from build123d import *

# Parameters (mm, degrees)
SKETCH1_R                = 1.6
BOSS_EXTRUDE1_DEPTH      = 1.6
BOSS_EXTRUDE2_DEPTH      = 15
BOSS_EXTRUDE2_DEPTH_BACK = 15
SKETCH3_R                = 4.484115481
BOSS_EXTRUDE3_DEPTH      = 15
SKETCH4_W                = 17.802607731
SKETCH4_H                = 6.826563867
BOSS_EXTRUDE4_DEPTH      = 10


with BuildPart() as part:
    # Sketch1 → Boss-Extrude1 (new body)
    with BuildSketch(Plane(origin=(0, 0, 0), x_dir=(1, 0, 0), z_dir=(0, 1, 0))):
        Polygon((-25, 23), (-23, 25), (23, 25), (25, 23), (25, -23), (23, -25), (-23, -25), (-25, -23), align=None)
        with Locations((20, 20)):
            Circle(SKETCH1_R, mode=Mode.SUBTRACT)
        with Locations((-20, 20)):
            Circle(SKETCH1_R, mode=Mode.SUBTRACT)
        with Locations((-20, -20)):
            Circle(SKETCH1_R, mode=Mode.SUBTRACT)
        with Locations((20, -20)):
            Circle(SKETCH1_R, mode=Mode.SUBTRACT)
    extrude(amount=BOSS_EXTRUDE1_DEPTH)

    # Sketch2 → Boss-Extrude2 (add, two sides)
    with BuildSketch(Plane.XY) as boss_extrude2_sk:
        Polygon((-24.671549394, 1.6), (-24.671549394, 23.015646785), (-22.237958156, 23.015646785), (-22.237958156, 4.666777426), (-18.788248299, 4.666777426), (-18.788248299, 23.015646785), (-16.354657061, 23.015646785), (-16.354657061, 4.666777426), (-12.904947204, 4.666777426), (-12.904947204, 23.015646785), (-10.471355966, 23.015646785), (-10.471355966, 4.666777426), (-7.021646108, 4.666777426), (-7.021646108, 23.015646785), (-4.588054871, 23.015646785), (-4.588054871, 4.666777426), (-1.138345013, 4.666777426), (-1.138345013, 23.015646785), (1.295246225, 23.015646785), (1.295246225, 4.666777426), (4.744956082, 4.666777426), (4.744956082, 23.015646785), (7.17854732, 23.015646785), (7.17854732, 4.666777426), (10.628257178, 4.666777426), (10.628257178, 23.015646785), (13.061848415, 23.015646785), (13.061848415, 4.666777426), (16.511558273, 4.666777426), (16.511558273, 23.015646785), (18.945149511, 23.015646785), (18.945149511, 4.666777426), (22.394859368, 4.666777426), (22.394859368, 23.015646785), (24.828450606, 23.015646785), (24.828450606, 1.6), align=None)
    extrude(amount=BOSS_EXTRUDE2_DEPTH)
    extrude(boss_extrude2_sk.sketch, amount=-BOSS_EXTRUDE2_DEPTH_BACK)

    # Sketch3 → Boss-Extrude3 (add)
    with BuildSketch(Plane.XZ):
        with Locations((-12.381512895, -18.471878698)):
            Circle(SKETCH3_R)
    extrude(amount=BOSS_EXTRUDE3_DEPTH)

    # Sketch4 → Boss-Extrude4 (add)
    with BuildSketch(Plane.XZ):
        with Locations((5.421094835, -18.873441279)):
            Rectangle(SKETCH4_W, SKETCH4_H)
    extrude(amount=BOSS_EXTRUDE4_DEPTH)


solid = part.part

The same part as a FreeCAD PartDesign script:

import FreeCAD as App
import Part
import Sketcher
from FreeCAD import Vector

doc = App.newDocument("Part")
params = doc.addObject("Spreadsheet::Sheet", "Params")
for row, (alias, value) in enumerate([
    ("sketch1_diameter", "3.2 mm"),
    ("sketch1_width", "46 mm"),
    ("pad1_length", "1.6 mm"),
    ("sketch2_width", "49.5 mm"),
    ("pad2_length", "15 mm"),
    ("pad2_length2", "15 mm"),
    ("pad3_length", "15 mm"),
    ("pad4_length", "10 mm"),
], start=1):
    params.set(f"A{row}", alias)
    params.set(f"B{row}", "=" + value)
    params.setAlias(f"B{row}", alias)

body = doc.addObject("PartDesign::Body", "Body")

# Sketch on XZ plane
sketch1 = body.newObject("Sketcher::SketchObject", "Sketch")
sketch1.AttachmentSupport = (doc.getObject("XZ_Plane"), [""])
sketch1.MapMode = "FlatFace"
sketch1.addGeometry([
    Part.LineSegment(Vector(-23, -25, 0), Vector(-25, -23, 0)),  # 0
    Part.LineSegment(Vector(-25, -23, 0), Vector(-25, 23, 0)),  # 1
    Part.LineSegment(Vector(-25, 23, 0), Vector(-23, 25, 0)),  # 2
    Part.LineSegment(Vector(-23, 25, 0), Vector(23, 25, 0)),  # 3
    Part.LineSegment(Vector(23, 25, 0), Vector(25, 23, 0)),  # 4
    Part.LineSegment(Vector(25, 23, 0), Vector(25, -23, 0)),  # 5
    Part.LineSegment(Vector(25, -23, 0), Vector(23, -25, 0)),  # 6
    Part.LineSegment(Vector(23, -25, 0), Vector(-23, -25, 0)),  # 7
    Part.Circle(Vector(20, 20, 0), Vector(0, 0, 1), 1.6),  # 8
    Part.Circle(Vector(-20, 20, 0), Vector(0, 0, 1), 1.6),  # 9
    Part.Circle(Vector(20, -20, 0), Vector(0, 0, 1), 1.6),  # 10
    Part.Circle(Vector(-20, -20, 0), Vector(0, 0, 1), 1.6),  # 11
], False)
sketch1.addConstraint([
    Sketcher.Constraint("Coincident", 0, 2, 1, 1),
    Sketcher.Constraint("Coincident", 1, 2, 2, 1),
    Sketcher.Constraint("Coincident", 2, 2, 3, 1),
    Sketcher.Constraint("Coincident", 3, 2, 4, 1),
    Sketcher.Constraint("Coincident", 4, 2, 5, 1),
    Sketcher.Constraint("Coincident", 5, 2, 6, 1),
    Sketcher.Constraint("Coincident", 6, 2, 7, 1),
    Sketcher.Constraint("Coincident", 7, 2, 0, 1),
    Sketcher.Constraint("Vertical", 1),
    Sketcher.Constraint("Horizontal", 3),
    Sketcher.Constraint("Vertical", 5),
    Sketcher.Constraint("Horizontal", 7),
    Sketcher.Constraint("Equal", 8, 9),
    Sketcher.Constraint("Equal", 9, 10),
    Sketcher.Constraint("Equal", 10, 11),
    Sketcher.Constraint("Symmetric", 9, 3, 10, 3, -1, 1),
    Sketcher.Constraint("Symmetric", 8, 3, 11, 3, -1, 1),
    Sketcher.Constraint("Symmetric", 0, 2, 4, 2, -1, 1),
    Sketcher.Constraint("Symmetric", 2, 2, 6, 2, -1, 1),
    Sketcher.Constraint("Symmetric", 8, 3, 9, 3, -2),
    Sketcher.Constraint("Perpendicular", 0, 2),
    Sketcher.Constraint("Perpendicular", 2, 4),
    Sketcher.Constraint("Perpendicular", 4, 6),
    Sketcher.Constraint("Horizontal", 1, 2, 4, 2),
    Sketcher.Constraint("Vertical", 3, 2, 6, 2),
    Sketcher.Constraint("Equal", 7, 1),
    Sketcher.Constraint("Diameter", 8, 3.2),
    Sketcher.Constraint("DistanceX", 3, 1, 3, 2, 46.0),
    Sketcher.Constraint("DistanceX", -1, 1, 8, 3, 20.0),
    Sketcher.Constraint("DistanceY", -1, 1, 8, 3, 20.0),
    Sketcher.Constraint("DistanceX", 0, 2, -1, 1, 25.0),
])
sketch1.setExpression("Constraints[26]", "Params.sketch1_diameter")
sketch1.setExpression("Constraints[27]", "Params.sketch1_width")
pad1 = body.newObject("PartDesign::Pad", "Pad")
pad1.Profile = sketch1
pad1.setExpression("Length", "Params.pad1_length")
pad1.Reversed = True

# Sketch on XY plane
sketch2 = body.newObject("Sketcher::SketchObject", "Sketch001")
sketch2.AttachmentSupport = (doc.getObject("XY_Plane"), [""])
sketch2.MapMode = "FlatFace"
sketch2.addGeometry([
    Part.LineSegment(Vector(-24.671549, 23.015647, 0), Vector(-24.671549, 1.6, 0)),  # 0
    Part.LineSegment(Vector(-24.671549, 1.6, 0), Vector(24.828451, 1.6, 0)),  # 1
    Part.LineSegment(Vector(24.828451, 1.6, 0), Vector(24.828451, 23.015647, 0)),  # 2
    Part.LineSegment(Vector(24.828451, 23.015647, 0), Vector(22.394859, 23.015647, 0)),  # 3
    Part.LineSegment(Vector(22.394859, 23.015647, 0), Vector(22.394859, 4.666777, 0)),  # 4
    Part.LineSegment(Vector(22.394859, 4.666777, 0), Vector(18.94515, 4.666777, 0)),  # 5
    Part.LineSegment(Vector(18.94515, 4.666777, 0), Vector(18.94515, 23.015647, 0)),  # 6
    Part.LineSegment(Vector(18.94515, 23.015647, 0), Vector(16.511558, 23.015647, 0)),  # 7
    Part.LineSegment(Vector(16.511558, 23.015647, 0), Vector(16.511558, 4.666777, 0)),  # 8
    Part.LineSegment(Vector(16.511558, 4.666777, 0), Vector(13.061848, 4.666777, 0)),  # 9
    Part.LineSegment(Vector(13.061848, 4.666777, 0), Vector(13.061848, 23.015647, 0)),  # 10
    Part.LineSegment(Vector(13.061848, 23.015647, 0), Vector(10.628257, 23.015647, 0)),  # 11
    Part.LineSegment(Vector(10.628257, 23.015647, 0), Vector(10.628257, 4.666777, 0)),  # 12
    Part.LineSegment(Vector(10.628257, 4.666777, 0), Vector(7.178547, 4.666777, 0)),  # 13
    Part.LineSegment(Vector(7.178547, 4.666777, 0), Vector(7.178547, 23.015647, 0)),  # 14
    Part.LineSegment(Vector(7.178547, 23.015647, 0), Vector(4.744956, 23.015647, 0)),  # 15
    Part.LineSegment(Vector(4.744956, 23.015647, 0), Vector(4.744956, 4.666777, 0)),  # 16
    Part.LineSegment(Vector(4.744956, 4.666777, 0), Vector(1.295246, 4.666777, 0)),  # 17
    Part.LineSegment(Vector(1.295246, 4.666777, 0), Vector(1.295246, 23.015647, 0)),  # 18
    Part.LineSegment(Vector(1.295246, 23.015647, 0), Vector(-1.138345, 23.015647, 0)),  # 19
    Part.LineSegment(Vector(-1.138345, 23.015647, 0), Vector(-1.138345, 4.666777, 0)),  # 20
    Part.LineSegment(Vector(-1.138345, 4.666777, 0), Vector(-4.588055, 4.666777, 0)),  # 21
    Part.LineSegment(Vector(-4.588055, 4.666777, 0), Vector(-4.588055, 23.015647, 0)),  # 22
    Part.LineSegment(Vector(-4.588055, 23.015647, 0), Vector(-7.021646, 23.015647, 0)),  # 23
    Part.LineSegment(Vector(-7.021646, 23.015647, 0), Vector(-7.021646, 4.666777, 0)),  # 24
    Part.LineSegment(Vector(-7.021646, 4.666777, 0), Vector(-10.471356, 4.666777, 0)),  # 25
    Part.LineSegment(Vector(-10.471356, 4.666777, 0), Vector(-10.471356, 23.015647, 0)),  # 26
    Part.LineSegment(Vector(-10.471356, 23.015647, 0), Vector(-12.904947, 23.015647, 0)),  # 27
    Part.LineSegment(Vector(-12.904947, 23.015647, 0), Vector(-12.904947, 4.666777, 0)),  # 28
    Part.LineSegment(Vector(-12.904947, 4.666777, 0), Vector(-16.354657, 4.666777, 0)),  # 29
    Part.LineSegment(Vector(-16.354657, 4.666777, 0), Vector(-16.354657, 23.015647, 0)),  # 30
    Part.LineSegment(Vector(-16.354657, 23.015647, 0), Vector(-18.788248, 23.015647, 0)),  # 31
    Part.LineSegment(Vector(-18.788248, 23.015647, 0), Vector(-18.788248, 4.666777, 0)),  # 32
    Part.LineSegment(Vector(-18.788248, 4.666777, 0), Vector(-22.237958, 4.666777, 0)),  # 33
    Part.LineSegment(Vector(-22.237958, 4.666777, 0), Vector(-22.237958, 23.015647, 0)),  # 34
    Part.LineSegment(Vector(-22.237958, 23.015647, 0), Vector(-24.671549, 23.015647, 0)),  # 35
], False)
sketch2.addConstraint([
    Sketcher.Constraint("Coincident", 0, 2, 1, 1),
    Sketcher.Constraint("Coincident", 1, 2, 2, 1),
    Sketcher.Constraint("Coincident", 2, 2, 3, 1),
    Sketcher.Constraint("Coincident", 3, 2, 4, 1),
    Sketcher.Constraint("Coincident", 4, 2, 5, 1),
    Sketcher.Constraint("Coincident", 5, 2, 6, 1),
    Sketcher.Constraint("Coincident", 6, 2, 7, 1),
    Sketcher.Constraint("Coincident", 7, 2, 8, 1),
    Sketcher.Constraint("Coincident", 8, 2, 9, 1),
    Sketcher.Constraint("Coincident", 9, 2, 10, 1),
    Sketcher.Constraint("Coincident", 10, 2, 11, 1),
    Sketcher.Constraint("Coincident", 11, 2, 12, 1),
    Sketcher.Constraint("Coincident", 12, 2, 13, 1),
    Sketcher.Constraint("Coincident", 13, 2, 14, 1),
    Sketcher.Constraint("Coincident", 14, 2, 15, 1),
    Sketcher.Constraint("Coincident", 15, 2, 16, 1),
    Sketcher.Constraint("Coincident", 16, 2, 17, 1),
    Sketcher.Constraint("Coincident", 17, 2, 18, 1),
    Sketcher.Constraint("Coincident", 18, 2, 19, 1),
    Sketcher.Constraint("Coincident", 19, 2, 20, 1),
    Sketcher.Constraint("Coincident", 20, 2, 21, 1),
    Sketcher.Constraint("Coincident", 21, 2, 22, 1),
    Sketcher.Constraint("Coincident", 22, 2, 23, 1),
    Sketcher.Constraint("Coincident", 23, 2, 24, 1),
    Sketcher.Constraint("Coincident", 24, 2, 25, 1),
    Sketcher.Constraint("Coincident", 25, 2, 26, 1),
    Sketcher.Constraint("Coincident", 26, 2, 27, 1),
    Sketcher.Constraint("Coincident", 27, 2, 28, 1),
    Sketcher.Constraint("Coincident", 28, 2, 29, 1),
    Sketcher.Constraint("Coincident", 29, 2, 30, 1),
    Sketcher.Constraint("Coincident", 30, 2, 31, 1),
    Sketcher.Constraint("Coincident", 31, 2, 32, 1),
    Sketcher.Constraint("Coincident", 32, 2, 33, 1),
    Sketcher.Constraint("Coincident", 33, 2, 34, 1),
    Sketcher.Constraint("Coincident", 34, 2, 35, 1),
    Sketcher.Constraint("Coincident", 35, 2, 0, 1),
    Sketcher.Constraint("Vertical", 0),
    Sketcher.Constraint("Horizontal", 1),
    Sketcher.Constraint("Vertical", 2),
    Sketcher.Constraint("Horizontal", 3),
    Sketcher.Constraint("Vertical", 4),
    Sketcher.Constraint("Horizontal", 5),
    Sketcher.Constraint("Vertical", 6),
    Sketcher.Constraint("Horizontal", 7),
    Sketcher.Constraint("Vertical", 8),
    Sketcher.Constraint("Horizontal", 9),
    Sketcher.Constraint("Vertical", 10),
    Sketcher.Constraint("Horizontal", 11),
    Sketcher.Constraint("Vertical", 12),
    Sketcher.Constraint("Horizontal", 13),
    Sketcher.Constraint("Vertical", 14),
    Sketcher.Constraint("Horizontal", 15),
    Sketcher.Constraint("Vertical", 16),
    Sketcher.Constraint("Horizontal", 17),
    Sketcher.Constraint("Vertical", 18),
    Sketcher.Constraint("Horizontal", 19),
    Sketcher.Constraint("Vertical", 20),
    Sketcher.Constraint("Horizontal", 21),
    Sketcher.Constraint("Vertical", 22),
    Sketcher.Constraint("Horizontal", 23),
    Sketcher.Constraint("Vertical", 24),
    Sketcher.Constraint("Horizontal", 25),
    Sketcher.Constraint("Vertical", 26),
    Sketcher.Constraint("Horizontal", 27),
    Sketcher.Constraint("Vertical", 28),
    Sketcher.Constraint("Horizontal", 29),
    Sketcher.Constraint("Vertical", 30),
    Sketcher.Constraint("Horizontal", 31),
    Sketcher.Constraint("Vertical", 32),
    Sketcher.Constraint("Horizontal", 33),
    Sketcher.Constraint("Vertical", 34),
    Sketcher.Constraint("Horizontal", 35),
    Sketcher.Constraint("Horizontal", 3, 2, 6, 2),
    Sketcher.Constraint("Horizontal", 5, 2, 8, 2),
    Sketcher.Constraint("Horizontal", 7, 2, 10, 2),
    Sketcher.Constraint("Horizontal", 9, 2, 12, 2),
    Sketcher.Constraint("Horizontal", 11, 2, 14, 2),
    Sketcher.Constraint("Horizontal", 13, 2, 16, 2),
    Sketcher.Constraint("Horizontal", 15, 2, 18, 2),
    Sketcher.Constraint("Horizontal", 17, 2, 20, 2),
    Sketcher.Constraint("Horizontal", 19, 2, 22, 2),
    Sketcher.Constraint("Horizontal", 21, 2, 24, 2),
    Sketcher.Constraint("Horizontal", 23, 2, 26, 2),
    Sketcher.Constraint("Horizontal", 25, 2, 28, 2),
    Sketcher.Constraint("Horizontal", 27, 2, 30, 2),
    Sketcher.Constraint("Horizontal", 29, 2, 32, 2),
    Sketcher.Constraint("Horizontal", 31, 2, 34, 2),
    Sketcher.Constraint("Equal", 3, 7),
    Sketcher.Constraint("Equal", 5, 9),
    Sketcher.Constraint("Equal", 7, 11),
    Sketcher.Constraint("Equal", 9, 13),
    Sketcher.Constraint("Equal", 11, 15),
    Sketcher.Constraint("Equal", 13, 17),
    Sketcher.Constraint("Equal", 15, 19),
    Sketcher.Constraint("Equal", 17, 21),
    Sketcher.Constraint("Equal", 19, 23),
    Sketcher.Constraint("Equal", 21, 25),
    Sketcher.Constraint("Equal", 23, 27),
    Sketcher.Constraint("Equal", 25, 29),
    Sketcher.Constraint("Equal", 27, 31),
    Sketcher.Constraint("Equal", 29, 33),
    Sketcher.Constraint("Equal", 31, 35),
    Sketcher.Constraint("DistanceX", 1, 1, 1, 2, 49.5),
    Sketcher.Constraint("DistanceY", -1, 1, 0, 2, 1.6),
    Sketcher.Constraint("DistanceX", 3, 2, 3, 1, 2.433591),
    Sketcher.Constraint("DistanceY", 4, 2, 4, 1, 18.348869),
    Sketcher.Constraint("DistanceY", 0, 2, 0, 1, 21.415647),
    Sketcher.Constraint("DistanceX", 0, 2, -1, 1, 24.671549),
])
sketch2.setExpression("Constraints[102]", "Params.sketch2_width")
pad2 = body.newObject("PartDesign::Pad", "Pad001")
pad2.Profile = sketch2
pad2.Type = "TwoLengths"
pad2.setExpression("Length", "Params.pad2_length")
pad2.setExpression("Length2", "Params.pad2_length2")

# Sketch on XZ plane
sketch3 = body.newObject("Sketcher::SketchObject", "Sketch002")
sketch3.AttachmentSupport = (doc.getObject("XZ_Plane"), [""])
sketch3.MapMode = "FlatFace"
sketch3.addGeometry(Part.Circle(Vector(-12.381513, -18.471879, 0), Vector(0, 0, 1), 4.484115), False)
sketch3.addConstraint([
    Sketcher.Constraint("Diameter", 0, 8.968231),
    Sketcher.Constraint("DistanceY", 0, 3, -1, 1, 18.471879),
    Sketcher.Constraint("DistanceX", 0, 3, -1, 1, 12.381513),
])
pad3 = body.newObject("PartDesign::Pad", "Pad002")
pad3.Profile = sketch3
pad3.setExpression("Length", "Params.pad3_length")

# Sketch on XZ plane
sketch4 = body.newObject("Sketcher::SketchObject", "Sketch003")
sketch4.AttachmentSupport = (doc.getObject("XZ_Plane"), [""])
sketch4.MapMode = "FlatFace"
sketch4.addGeometry([
    Part.LineSegment(Vector(-3.480209, -15.460159, 0), Vector(-3.480209, -22.286723, 0)),
    Part.LineSegment(Vector(-3.480209, -22.286723, 0), Vector(14.322399, -22.286723, 0)),
    Part.LineSegment(Vector(14.322399, -22.286723, 0), Vector(14.322399, -15.460159, 0)),
    Part.LineSegment(Vector(14.322399, -15.460159, 0), Vector(-3.480209, -15.460159, 0)),
], False)
sketch4.addConstraint([
    Sketcher.Constraint("Coincident", 0, 2, 1, 1),
    Sketcher.Constraint("Coincident", 1, 2, 2, 1),
    Sketcher.Constraint("Coincident", 2, 2, 3, 1),
    Sketcher.Constraint("Coincident", 3, 2, 0, 1),
    Sketcher.Constraint("Vertical", 0),
    Sketcher.Constraint("Horizontal", 1),
    Sketcher.Constraint("Vertical", 2),
    Sketcher.Constraint("Horizontal", 3),
    Sketcher.Constraint("DistanceX", -1, 1, 1, 2, 14.322399),
    Sketcher.Constraint("DistanceX", 1, 1, 1, 2, 17.802608),
    Sketcher.Constraint("DistanceY", 0, 2, 0, 1, 6.826564),
    Sketcher.Constraint("DistanceY", 2, 2, -1, 1, 15.460159),
])
pad4 = body.newObject("PartDesign::Pad", "Pad003")
pad4.Profile = sketch4
pad4.setExpression("Length", "Params.pad4_length")

doc.recompute()
